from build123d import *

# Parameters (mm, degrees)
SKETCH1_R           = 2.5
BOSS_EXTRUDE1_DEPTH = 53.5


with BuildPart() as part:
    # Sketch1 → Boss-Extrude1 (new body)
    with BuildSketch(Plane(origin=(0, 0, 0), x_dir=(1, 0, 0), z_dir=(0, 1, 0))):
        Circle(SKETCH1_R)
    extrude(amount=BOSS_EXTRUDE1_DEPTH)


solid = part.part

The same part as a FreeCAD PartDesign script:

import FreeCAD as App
import Part
import Sketcher

V = App.Vector
Q = App.Units.Quantity

doc = App.newDocument("Part")
body = doc.addObject("PartDesign::Body", "Body")

# Sketch on XZ plane
sketch1 = body.newObject("Sketcher::SketchObject", "Sketch")
sketch1.AttachmentSupport = (doc.getObject("XZ_Plane"), [""])
sketch1.MapMode = "FlatFace"
sketch1.addGeometry(Part.Circle(V(0, 0, 0), V(0, 0, 1), 2.5), False)
sketch1.addConstraint(Sketcher.Constraint("Coincident", 0, 3, -1, 1))
sketch1.addConstraint(Sketcher.Constraint("Diameter", 0, Q("5 mm")))
pad1 = body.newObject("PartDesign::Pad", "Pad")
pad1.Profile = sketch1
pad1.Length = 53.5
pad1.Reversed = True

doc.recompute()
